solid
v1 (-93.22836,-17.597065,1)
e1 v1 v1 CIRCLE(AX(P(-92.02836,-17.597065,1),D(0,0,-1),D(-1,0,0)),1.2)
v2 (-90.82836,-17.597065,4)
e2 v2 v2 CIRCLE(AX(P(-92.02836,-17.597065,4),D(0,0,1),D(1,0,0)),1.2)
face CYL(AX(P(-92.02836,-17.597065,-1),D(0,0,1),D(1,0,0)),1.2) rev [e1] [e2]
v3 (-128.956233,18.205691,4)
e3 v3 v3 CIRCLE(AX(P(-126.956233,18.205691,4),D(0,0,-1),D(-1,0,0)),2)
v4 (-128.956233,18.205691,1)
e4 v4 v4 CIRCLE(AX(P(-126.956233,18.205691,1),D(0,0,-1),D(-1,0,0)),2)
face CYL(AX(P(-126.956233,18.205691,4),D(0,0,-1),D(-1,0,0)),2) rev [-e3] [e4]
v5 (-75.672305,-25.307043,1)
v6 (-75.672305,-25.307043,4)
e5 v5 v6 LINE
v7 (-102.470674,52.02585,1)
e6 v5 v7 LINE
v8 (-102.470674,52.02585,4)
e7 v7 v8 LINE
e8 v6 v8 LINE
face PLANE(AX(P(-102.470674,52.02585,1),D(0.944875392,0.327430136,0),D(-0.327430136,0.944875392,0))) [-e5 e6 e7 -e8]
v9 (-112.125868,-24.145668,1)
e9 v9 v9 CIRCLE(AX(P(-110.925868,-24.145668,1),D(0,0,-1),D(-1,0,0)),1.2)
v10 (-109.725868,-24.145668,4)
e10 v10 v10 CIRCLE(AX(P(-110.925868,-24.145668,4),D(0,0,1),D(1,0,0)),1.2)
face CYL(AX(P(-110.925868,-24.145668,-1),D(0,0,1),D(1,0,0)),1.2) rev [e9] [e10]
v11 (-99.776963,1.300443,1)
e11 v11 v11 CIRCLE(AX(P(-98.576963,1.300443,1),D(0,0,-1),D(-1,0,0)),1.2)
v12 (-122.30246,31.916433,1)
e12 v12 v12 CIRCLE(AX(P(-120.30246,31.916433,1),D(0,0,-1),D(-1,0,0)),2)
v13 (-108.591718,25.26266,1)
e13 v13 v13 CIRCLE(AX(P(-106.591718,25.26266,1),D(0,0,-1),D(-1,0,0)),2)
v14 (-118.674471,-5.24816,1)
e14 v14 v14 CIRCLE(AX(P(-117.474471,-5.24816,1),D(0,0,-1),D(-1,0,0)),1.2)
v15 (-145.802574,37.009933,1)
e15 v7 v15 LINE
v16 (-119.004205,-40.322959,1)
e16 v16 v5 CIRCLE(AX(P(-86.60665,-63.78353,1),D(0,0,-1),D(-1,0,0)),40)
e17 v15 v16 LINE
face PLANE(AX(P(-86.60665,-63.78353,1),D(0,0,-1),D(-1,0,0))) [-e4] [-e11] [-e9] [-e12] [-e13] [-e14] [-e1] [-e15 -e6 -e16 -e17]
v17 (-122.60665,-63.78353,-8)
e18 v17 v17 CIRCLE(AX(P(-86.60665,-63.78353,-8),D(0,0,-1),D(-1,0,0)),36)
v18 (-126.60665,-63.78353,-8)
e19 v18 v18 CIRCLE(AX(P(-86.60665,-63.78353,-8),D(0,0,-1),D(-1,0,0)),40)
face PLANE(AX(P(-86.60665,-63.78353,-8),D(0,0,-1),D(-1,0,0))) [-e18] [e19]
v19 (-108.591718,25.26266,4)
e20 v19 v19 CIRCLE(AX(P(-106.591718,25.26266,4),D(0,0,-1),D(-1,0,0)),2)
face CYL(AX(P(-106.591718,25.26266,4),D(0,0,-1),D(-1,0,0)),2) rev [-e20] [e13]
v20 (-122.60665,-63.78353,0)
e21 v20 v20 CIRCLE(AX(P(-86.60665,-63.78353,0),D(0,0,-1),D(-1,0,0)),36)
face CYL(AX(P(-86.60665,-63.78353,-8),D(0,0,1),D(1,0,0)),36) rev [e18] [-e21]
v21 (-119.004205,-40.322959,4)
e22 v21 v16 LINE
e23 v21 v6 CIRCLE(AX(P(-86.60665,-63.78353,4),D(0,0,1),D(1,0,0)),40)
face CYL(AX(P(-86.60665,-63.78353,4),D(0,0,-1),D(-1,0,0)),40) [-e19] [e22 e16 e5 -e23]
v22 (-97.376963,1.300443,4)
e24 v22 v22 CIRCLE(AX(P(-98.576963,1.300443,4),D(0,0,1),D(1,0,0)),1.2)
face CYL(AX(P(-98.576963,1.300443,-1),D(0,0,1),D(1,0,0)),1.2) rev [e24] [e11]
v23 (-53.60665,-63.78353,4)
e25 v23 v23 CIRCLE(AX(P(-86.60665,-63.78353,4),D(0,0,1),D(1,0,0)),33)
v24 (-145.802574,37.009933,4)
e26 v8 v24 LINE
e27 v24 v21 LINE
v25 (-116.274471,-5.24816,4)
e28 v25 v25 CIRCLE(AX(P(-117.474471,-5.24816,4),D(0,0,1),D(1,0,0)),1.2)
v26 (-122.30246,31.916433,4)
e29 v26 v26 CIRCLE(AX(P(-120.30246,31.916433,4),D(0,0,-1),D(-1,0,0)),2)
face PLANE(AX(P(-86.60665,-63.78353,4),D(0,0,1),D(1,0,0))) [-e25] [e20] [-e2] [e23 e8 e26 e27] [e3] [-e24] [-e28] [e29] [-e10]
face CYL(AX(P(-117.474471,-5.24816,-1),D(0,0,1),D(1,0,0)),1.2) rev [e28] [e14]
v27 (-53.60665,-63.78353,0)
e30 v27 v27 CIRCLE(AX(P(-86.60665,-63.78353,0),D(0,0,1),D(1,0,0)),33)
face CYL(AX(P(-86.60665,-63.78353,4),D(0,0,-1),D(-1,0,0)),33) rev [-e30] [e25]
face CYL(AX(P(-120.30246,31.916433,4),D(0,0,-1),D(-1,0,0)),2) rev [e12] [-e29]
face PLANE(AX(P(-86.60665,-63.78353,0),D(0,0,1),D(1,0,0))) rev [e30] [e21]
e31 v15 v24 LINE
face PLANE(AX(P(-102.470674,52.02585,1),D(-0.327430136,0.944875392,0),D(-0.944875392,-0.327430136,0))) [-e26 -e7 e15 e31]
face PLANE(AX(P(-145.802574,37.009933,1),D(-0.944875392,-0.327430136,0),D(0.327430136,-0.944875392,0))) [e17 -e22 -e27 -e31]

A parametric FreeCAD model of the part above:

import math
import FreeCAD as App
import Part
import Sketcher
Q = App.Units.Quantity

doc = App.newDocument("Part")
body = doc.addObject("PartDesign::Body", "Body")

# Sketch on XY plane
sketch1 = doc.addObject("Sketcher::SketchObject", "Sketch")
body.addObject(sketch1)
sketch1.AttachmentSupport = (doc.XY_Plane, [""])
sketch1.MapMode = "FlatFace"
sketch1.addGeometry(Part.Circle(App.Vector(-87, -64, 0), App.Vector(0, 0, 1), 40), False)
sketch1.addGeometry(Part.Circle(App.Vector(-87, -64, 0), App.Vector(0, 0, 1), 33), False)
sketch1.addConstraint(Sketcher.Constraint("Coincident", 1, 3, 0, 3))
sketch1.addConstraint(Sketcher.Constraint("Diameter", 0, Q("80 mm")))
sketch1.addConstraint(Sketcher.Constraint("Diameter", 1, Q("66 mm")))
sketch1.addConstraint(Sketcher.Constraint("DistanceX", 0, 3, -1, 1, Q("86.60665 mm")))
sketch1.addConstraint(Sketcher.Constraint("DistanceY", 0, 3, -1, 1, Q("63.78353 mm")))
pad1 = doc.addObject("PartDesign::Pad", "Pad")
body.addObject(pad1)
pad1.Profile = sketch1
pad1.Length = 4

# Sketch on XY plane
sketch2 = doc.addObject("Sketcher::SketchObject", "Sketch001")
body.addObject(sketch2)
sketch2.AttachmentSupport = (doc.XY_Plane, [""])
sketch2.MapMode = "FlatFace"
sketch2.AttachmentOffset = App.Placement(App.Vector(0, 0, -8), App.Rotation())
sketch2.addGeometry(Part.Circle(App.Vector(-87, -64, 0), App.Vector(0, 0, 1), 40), False)
sketch2.addGeometry(Part.Circle(App.Vector(-87, -64, 0), App.Vector(0, 0, 1), 36), False)
sketch2.addConstraint(Sketcher.Constraint("Coincident", 1, 3, 0, 3))
sketch2.addConstraint(Sketcher.Constraint("Diameter", 0, Q("80 mm")))
sketch2.addConstraint(Sketcher.Constraint("Diameter", 1, Q("72 mm")))
sketch2.addConstraint(Sketcher.Constraint("DistanceX", 0, 3, -1, 1, Q("86.60665 mm")))
sketch2.addConstraint(Sketcher.Constraint("DistanceY", 0, 3, -1, 1, Q("63.78353 mm")))
pad2 = doc.addObject("PartDesign::Pad", "Pad001")
body.addObject(pad2)
pad2.Profile = sketch2
pad2.Length = 8

# Sketch on XY plane
sketch3 = doc.addObject("Sketcher::SketchObject", "Sketch002")
body.addObject(sketch3)
sketch3.AttachmentSupport = (doc.XY_Plane, [""])
sketch3.MapMode = "FlatFace"
sketch3.AttachmentOffset = App.Placement(App.Vector(0, 0, 4), App.Rotation())
sketch3.addGeometry(Part.LineSegment(App.Vector(-102, 52, 0), App.Vector(-146, 37, 0)), False)
sketch3.addGeometry(Part.LineSegment(App.Vector(-146, 37, 0), App.Vector(-118, -43, 0)), False)
sketch3.addGeometry(Part.ArcOfCircle(Part.Circle(App.Vector(-87, -64, 0), App.Vector(0, 0, 1), 38), math.radians(72), math.radians(146)), False)
sketch3.addGeometry(Part.LineSegment(App.Vector(-75, -28, 0), App.Vector(-102, 52, 0)), False)
sketch3.addConstraint(Sketcher.Constraint("Coincident", 0, 2, 1, 1))
sketch3.addConstraint(Sketcher.Constraint("Coincident", 1, 2, 2, 2))
sketch3.addConstraint(Sketcher.Constraint("Coincident", 2, 1, 3, 1))
sketch3.addConstraint(Sketcher.Constraint("Coincident", 3, 2, 0, 1))
sketch3.addConstraint(Sketcher.Constraint("Perpendicular", 0, 1))
sketch3.addConstraint(Sketcher.Constraint("Parallel", 1, 3))
sketch3.addConstraint(Sketcher.Constraint("Equal", 1, 3))
sketch3.addConstraint(Sketcher.Constraint("Radius", 2, Q("38.106926 mm")))
sketch3.addConstraint(Sketcher.Constraint("DistanceX", 1, 2, 2, 1, Q("43.3319 mm")))
sketch3.addConstraint(Sketcher.Constraint("Distance", 0, Q("45.85991 mm")))
sketch3.addConstraint(Sketcher.Constraint("DistanceX", 2, 3, -1, 1, Q("86.60665 mm")))
sketch3.addConstraint(Sketcher.Constraint("DistanceY", 2, 3, -1, 1, Q("63.78353 mm")))
sketch3.addConstraint(Sketcher.Constraint("DistanceY", -1, 1, 3, 2, Q("52.02585 mm")))
pad3 = doc.addObject("PartDesign::Pad", "Pad002")
body.addObject(pad3)
pad3.Profile = sketch3
pad3.Length = 3
pad3.Reversed = True

# Sketch on XY plane
sketch4 = doc.addObject("Sketcher::SketchObject", "Sketch003")
body.addObject(sketch4)
sketch4.AttachmentSupport = (doc.XY_Plane, [""])
sketch4.MapMode = "FlatFace"
sketch4.AttachmentOffset = App.Placement(App.Vector(0, 0, 1), App.Rotation())
sketch4.addGeometry(Part.Circle(App.Vector(-120.3, 31.9, 0), App.Vector(0, 0, 1), 2), False)
sketch4.addGeometry(Part.Circle(App.Vector(-127, 18.2, 0), App.Vector(0, 0, 1), 2), False)
sketch4.addGeometry(Part.Circle(App.Vector(-106.6, 25.3, 0), App.Vector(0, 0, 1), 2), False)
sketch4.addConstraint(Sketcher.Constraint("Equal", 0, 1))
sketch4.addConstraint(Sketcher.Constraint("Equal", 1, 2))
sketch4.addConstraint(Sketcher.Constraint("Diameter", 0, Q("4 mm")))
sketch4.addConstraint(Sketcher.Constraint("DistanceX", 0, 3, -1, 1, Q("120.30246 mm")))
sketch4.addConstraint(Sketcher.Constraint("DistanceY", -1, 1, 1, 3, Q("18.205691 mm")))
sketch4.addConstraint(Sketcher.Constraint("DistanceY", -1, 1, 2, 3, Q("25.26266 mm")))
sketch4.addConstraint(Sketcher.Constraint("DistanceY", 1, 3, 0, 3, Q("13.710742 mm")))
sketch4.addConstraint(Sketcher.Constraint("DistanceX", 0, 3, 2, 3, Q("13.710742 mm")))
sketch4.addConstraint(Sketcher.Constraint("DistanceX", 1, 3, -1, 1, Q("126.956233 mm")))
pocket1 = doc.addObject("PartDesign::Pocket", "Pocket")
body.addObject(pocket1)
pocket1.Profile = sketch4
pocket1.Length = 3
pocket1.Reversed = True

# Sketch on XY plane
sketch5 = doc.addObject("Sketcher::SketchObject", "Sketch004")
body.addObject(sketch5)
sketch5.AttachmentSupport = (doc.XY_Plane, [""])
sketch5.MapMode = "FlatFace"
sketch5.AttachmentOffset = App.Placement(App.Vector(0, 0, 4), App.Rotation())
sketch5.addGeometry(Part.Circle(App.Vector(-117.5, -5.2, 0), App.Vector(0, 0, 1), 1.2), False)
sketch5.addGeometry(Part.Circle(App.Vector(-110.9, -24.1, 0), App.Vector(0, 0, 1), 1.2), False)
sketch5.addGeometry(Part.Circle(App.Vector(-98.6, 1.3, 0), App.Vector(0, 0, 1), 1.2), False)
sketch5.addGeometry(Part.Circle(App.Vector(-92, -17.6, 0), App.Vector(0, 0, 1), 1.2), False)
sketch5.addConstraint(Sketcher.Constraint("Equal", 0, 1))
sketch5.addConstraint(Sketcher.Constraint("Equal", 1, 2))
sketch5.addConstraint(Sketcher.Constraint("Equal", 2, 3))
sketch5.addConstraint(Sketcher.Constraint("Diameter", 0, Q("2.4 mm")))
sketch5.addConstraint(Sketcher.Constraint("DistanceX", 0, 3, -1, 1, Q("117.474471 mm")))
sketch5.addConstraint(Sketcher.Constraint("DistanceY", 0, 3, -1, 1, Q("5.24816 mm")))
sketch5.addConstraint(Sketcher.Constraint("DistanceX", 1, 3, -1, 1, Q("110.925868 mm")))
sketch5.addConstraint(Sketcher.Constraint("DistanceX", 3, 3, -1, 1, Q("92.02836 mm")))
sketch5.addConstraint(Sketcher.Constraint("DistanceY", 1, 3, 2, 3, Q("25.446111 mm")))
sketch5.addConstraint(Sketcher.Constraint("DistanceY", 1, 3, -1, 1, Q("24.145668 mm")))
sketch5.addConstraint(Sketcher.Constraint("DistanceX", 2, 3, -1, 1, Q("98.576963 mm")))
sketch5.addConstraint(Sketcher.Constraint("DistanceY", 3, 3, -1, 1, Q("17.597065 mm")))
pocket2 = doc.addObject("PartDesign::Pocket", "Pocket001")
body.addObject(pocket2)
pocket2.Profile = sketch5
pocket2.Length = 5

doc.recompute()
